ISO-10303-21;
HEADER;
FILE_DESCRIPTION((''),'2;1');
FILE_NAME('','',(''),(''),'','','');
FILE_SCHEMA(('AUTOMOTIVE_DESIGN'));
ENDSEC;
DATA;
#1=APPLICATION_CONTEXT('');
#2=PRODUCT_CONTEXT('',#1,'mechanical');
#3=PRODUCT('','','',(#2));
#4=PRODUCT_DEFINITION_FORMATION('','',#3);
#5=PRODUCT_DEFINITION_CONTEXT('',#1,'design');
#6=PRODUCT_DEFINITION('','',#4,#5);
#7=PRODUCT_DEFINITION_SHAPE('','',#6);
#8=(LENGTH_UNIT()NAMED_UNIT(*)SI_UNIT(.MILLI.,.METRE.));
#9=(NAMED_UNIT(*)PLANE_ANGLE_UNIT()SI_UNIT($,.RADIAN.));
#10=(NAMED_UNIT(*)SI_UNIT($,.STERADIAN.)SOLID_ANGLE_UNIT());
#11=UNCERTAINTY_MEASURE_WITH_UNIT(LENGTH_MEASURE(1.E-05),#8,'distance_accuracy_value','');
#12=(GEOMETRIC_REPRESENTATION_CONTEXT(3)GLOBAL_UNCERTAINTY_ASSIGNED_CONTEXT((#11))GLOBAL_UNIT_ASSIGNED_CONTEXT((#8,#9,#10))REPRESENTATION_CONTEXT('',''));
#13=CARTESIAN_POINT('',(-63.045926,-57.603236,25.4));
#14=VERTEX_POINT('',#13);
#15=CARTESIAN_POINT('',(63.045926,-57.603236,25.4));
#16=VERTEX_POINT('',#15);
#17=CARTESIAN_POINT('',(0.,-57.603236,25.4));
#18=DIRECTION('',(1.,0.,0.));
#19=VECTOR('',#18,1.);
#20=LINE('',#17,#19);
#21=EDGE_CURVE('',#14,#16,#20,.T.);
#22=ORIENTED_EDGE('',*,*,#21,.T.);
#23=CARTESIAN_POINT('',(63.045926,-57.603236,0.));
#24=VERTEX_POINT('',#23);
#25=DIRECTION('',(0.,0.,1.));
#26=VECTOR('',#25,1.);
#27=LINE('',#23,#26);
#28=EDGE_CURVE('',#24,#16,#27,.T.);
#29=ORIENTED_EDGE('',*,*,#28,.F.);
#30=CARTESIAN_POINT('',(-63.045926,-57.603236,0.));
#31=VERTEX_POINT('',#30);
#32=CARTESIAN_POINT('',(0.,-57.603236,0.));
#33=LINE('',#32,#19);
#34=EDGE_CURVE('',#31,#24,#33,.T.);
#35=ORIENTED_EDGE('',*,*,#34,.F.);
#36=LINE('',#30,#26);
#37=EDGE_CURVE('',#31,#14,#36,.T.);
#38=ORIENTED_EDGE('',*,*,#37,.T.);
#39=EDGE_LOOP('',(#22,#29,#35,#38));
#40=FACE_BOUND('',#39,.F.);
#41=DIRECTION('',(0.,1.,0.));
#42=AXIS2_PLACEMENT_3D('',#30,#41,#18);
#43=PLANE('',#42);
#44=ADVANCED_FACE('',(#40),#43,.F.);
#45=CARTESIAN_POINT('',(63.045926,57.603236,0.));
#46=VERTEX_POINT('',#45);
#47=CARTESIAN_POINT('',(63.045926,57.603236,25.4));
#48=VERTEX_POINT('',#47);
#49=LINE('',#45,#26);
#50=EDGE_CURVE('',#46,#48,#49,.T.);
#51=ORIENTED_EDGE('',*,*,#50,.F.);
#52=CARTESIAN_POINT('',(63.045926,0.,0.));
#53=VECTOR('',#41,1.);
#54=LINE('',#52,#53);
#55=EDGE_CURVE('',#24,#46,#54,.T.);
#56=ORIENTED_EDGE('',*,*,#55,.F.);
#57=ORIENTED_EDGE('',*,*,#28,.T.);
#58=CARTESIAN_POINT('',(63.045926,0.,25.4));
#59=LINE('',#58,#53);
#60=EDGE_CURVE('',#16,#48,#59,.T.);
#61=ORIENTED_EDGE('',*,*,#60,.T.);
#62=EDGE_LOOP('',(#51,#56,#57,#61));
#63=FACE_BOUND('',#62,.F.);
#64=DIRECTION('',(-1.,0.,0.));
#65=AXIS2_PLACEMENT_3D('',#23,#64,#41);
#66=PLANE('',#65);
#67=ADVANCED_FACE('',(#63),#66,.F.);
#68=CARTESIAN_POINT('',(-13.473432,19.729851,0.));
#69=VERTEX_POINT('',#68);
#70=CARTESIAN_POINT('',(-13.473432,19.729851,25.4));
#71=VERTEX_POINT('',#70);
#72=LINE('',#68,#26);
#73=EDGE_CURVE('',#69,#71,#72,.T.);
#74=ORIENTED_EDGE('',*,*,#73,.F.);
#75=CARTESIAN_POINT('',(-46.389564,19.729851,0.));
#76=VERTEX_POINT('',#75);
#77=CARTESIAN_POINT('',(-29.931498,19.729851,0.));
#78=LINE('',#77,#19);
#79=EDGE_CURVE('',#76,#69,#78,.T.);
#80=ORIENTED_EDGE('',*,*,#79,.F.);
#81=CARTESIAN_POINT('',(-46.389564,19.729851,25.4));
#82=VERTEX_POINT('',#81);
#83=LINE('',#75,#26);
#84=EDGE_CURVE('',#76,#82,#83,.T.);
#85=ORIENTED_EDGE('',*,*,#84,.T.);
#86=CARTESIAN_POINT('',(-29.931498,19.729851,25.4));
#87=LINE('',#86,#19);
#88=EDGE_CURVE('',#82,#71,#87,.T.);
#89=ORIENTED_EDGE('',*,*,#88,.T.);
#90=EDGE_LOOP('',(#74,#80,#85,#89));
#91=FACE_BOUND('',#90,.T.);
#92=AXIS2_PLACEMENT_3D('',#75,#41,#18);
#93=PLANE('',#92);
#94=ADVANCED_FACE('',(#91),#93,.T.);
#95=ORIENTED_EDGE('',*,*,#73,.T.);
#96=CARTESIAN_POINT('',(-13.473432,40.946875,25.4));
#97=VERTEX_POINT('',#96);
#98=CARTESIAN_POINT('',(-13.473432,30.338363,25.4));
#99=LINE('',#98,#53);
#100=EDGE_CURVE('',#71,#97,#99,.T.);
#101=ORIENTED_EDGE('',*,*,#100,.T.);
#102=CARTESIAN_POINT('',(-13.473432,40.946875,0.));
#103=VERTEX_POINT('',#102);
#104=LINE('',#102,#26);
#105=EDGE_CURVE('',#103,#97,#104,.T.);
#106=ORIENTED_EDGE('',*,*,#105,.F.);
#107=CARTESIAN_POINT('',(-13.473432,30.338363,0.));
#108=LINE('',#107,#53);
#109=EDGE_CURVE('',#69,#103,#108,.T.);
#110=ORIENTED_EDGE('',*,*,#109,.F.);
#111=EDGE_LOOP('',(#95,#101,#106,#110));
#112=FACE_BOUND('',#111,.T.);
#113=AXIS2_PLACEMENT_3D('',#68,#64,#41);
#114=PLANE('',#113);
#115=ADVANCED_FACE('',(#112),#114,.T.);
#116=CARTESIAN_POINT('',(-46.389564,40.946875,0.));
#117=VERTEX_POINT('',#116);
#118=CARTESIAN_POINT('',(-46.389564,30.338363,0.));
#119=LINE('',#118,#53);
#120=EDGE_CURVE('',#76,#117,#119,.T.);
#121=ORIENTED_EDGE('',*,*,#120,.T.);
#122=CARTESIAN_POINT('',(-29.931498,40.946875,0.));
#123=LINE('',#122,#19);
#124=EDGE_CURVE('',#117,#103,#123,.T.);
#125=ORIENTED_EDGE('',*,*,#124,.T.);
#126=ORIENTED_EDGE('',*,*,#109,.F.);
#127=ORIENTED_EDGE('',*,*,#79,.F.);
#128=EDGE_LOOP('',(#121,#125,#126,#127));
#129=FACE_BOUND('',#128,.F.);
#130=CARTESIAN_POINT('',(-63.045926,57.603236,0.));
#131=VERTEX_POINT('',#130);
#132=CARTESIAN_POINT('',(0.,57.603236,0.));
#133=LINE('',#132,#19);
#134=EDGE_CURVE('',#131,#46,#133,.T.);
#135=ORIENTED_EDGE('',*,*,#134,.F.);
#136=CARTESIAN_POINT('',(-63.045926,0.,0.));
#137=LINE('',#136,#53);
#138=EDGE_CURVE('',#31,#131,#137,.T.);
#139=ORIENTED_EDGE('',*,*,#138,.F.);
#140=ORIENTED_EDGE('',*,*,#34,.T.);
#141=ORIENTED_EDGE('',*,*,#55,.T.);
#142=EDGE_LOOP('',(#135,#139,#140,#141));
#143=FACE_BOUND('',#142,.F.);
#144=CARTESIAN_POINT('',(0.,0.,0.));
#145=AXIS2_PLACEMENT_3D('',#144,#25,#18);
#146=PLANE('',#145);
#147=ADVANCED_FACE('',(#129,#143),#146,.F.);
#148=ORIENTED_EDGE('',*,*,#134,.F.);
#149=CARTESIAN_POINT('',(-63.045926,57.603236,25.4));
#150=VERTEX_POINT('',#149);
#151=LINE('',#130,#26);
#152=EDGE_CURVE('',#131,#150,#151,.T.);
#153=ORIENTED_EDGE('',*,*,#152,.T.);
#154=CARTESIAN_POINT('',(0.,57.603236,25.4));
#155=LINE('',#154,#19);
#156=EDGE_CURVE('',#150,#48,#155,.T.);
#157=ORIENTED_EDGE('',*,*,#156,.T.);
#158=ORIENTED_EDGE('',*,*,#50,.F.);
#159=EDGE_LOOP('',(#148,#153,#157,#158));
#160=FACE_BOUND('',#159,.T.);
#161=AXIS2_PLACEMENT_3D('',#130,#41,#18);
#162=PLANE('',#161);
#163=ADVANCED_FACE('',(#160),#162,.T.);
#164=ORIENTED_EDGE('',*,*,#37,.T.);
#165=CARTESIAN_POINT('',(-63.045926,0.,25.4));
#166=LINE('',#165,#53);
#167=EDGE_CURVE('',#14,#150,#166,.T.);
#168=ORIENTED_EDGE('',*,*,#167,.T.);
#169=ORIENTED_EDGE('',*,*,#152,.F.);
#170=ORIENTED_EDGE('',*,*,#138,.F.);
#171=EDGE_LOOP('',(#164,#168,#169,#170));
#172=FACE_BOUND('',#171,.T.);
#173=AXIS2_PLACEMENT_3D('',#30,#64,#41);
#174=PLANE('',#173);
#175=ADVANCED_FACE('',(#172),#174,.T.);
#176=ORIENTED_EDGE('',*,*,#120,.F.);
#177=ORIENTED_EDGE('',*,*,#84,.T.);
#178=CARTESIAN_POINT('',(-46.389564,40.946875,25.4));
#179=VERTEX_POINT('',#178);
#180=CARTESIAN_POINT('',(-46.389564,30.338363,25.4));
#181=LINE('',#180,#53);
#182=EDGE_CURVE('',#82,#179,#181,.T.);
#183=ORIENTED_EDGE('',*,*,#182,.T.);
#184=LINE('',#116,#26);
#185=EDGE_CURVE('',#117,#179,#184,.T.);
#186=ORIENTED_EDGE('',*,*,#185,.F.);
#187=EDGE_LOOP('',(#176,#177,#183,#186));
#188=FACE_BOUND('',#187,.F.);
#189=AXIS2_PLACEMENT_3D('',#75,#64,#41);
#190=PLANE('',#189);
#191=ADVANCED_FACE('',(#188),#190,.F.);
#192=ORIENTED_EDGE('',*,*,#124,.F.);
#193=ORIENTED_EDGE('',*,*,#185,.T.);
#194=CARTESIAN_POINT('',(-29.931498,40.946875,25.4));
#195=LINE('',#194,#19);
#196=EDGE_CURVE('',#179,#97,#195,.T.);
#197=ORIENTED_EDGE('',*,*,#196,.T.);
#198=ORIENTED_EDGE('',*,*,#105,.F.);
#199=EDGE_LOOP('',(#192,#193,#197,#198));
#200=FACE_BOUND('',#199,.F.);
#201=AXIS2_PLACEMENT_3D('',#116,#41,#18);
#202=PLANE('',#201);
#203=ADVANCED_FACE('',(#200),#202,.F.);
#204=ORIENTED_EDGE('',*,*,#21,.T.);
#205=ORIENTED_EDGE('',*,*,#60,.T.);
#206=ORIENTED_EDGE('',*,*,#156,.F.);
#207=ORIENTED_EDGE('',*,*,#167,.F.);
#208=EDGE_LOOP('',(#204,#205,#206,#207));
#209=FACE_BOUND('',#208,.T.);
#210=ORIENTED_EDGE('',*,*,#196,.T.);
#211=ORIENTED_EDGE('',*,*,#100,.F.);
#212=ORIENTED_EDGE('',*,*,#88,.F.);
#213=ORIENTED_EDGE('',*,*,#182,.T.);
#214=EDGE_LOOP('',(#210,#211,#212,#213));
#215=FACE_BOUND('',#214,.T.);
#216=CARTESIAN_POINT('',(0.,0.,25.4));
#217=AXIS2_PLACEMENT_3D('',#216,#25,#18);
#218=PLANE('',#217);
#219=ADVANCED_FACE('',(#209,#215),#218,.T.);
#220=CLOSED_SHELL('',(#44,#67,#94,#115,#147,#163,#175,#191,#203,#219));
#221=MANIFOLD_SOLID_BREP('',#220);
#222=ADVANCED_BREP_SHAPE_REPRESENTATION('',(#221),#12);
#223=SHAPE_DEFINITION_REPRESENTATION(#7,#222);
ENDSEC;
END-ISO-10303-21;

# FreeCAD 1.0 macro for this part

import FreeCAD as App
import Part
import Sketcher

V = App.Vector
Q = App.Units.Quantity


def add_polygon(sketch, points):
    """Adds a closed chain of lines whose ends are joined by coincident constraints."""
    first, n = sketch.GeometryCount, len(points)
    for a, b in zip(points, points[1:] + points[:1]):
        sketch.addGeometry(Part.LineSegment(App.Vector(*a, 0), App.Vector(*b, 0)), False)
    for i in range(n):
        sketch.addConstraint(Sketcher.Constraint("Coincident", first + i, 2, first + (i + 1) % n, 1))

doc = App.newDocument("Part")
body = doc.addObject("PartDesign::Body", "Body")

# Sketch on XY plane
sketch1 = body.newObject("Sketcher::SketchObject", "Sketch")
sketch1.AttachmentSupport = (doc.getObject("XY_Plane"), [""])
sketch1.MapMode = "FlatFace"
add_polygon(sketch1, [(-37, 19), (-37, -19), (37, -19), (37, 19)])  # lines 0-3
sketch1.addConstraint([
    Sketcher.Constraint("Vertical", 0),
    Sketcher.Constraint("Horizontal", 1),
    Sketcher.Constraint("Vertical", 2),
    Sketcher.Constraint("Horizontal", 3),
    Sketcher.Constraint("Symmetric", 0, 2, 2, 2, -1, 1),
    Sketcher.Constraint("DistanceX", 1, 1, 1, 2, 73.41028),
    Sketcher.Constraint("DistanceY", 0, 2, 0, 1, 38.70118),
])
pad1 = body.newObject("PartDesign::Pad", "Pad")
pad1.Profile = sketch1
pad1.Length = Q("1 in")

# Sketch on XY plane
sketch2 = body.newObject("Sketcher::SketchObject", "Sketch001")
sketch2.AttachmentSupport = (doc.getObject("XY_Plane"), [""])
sketch2.MapMode = "FlatFace"
add_polygon(sketch2, [(-63, 58), (-63, -58), (63, -58), (63, 58)])  # lines 0-3
sketch2.addConstraint([
    Sketcher.Constraint("Vertical", 0),
    Sketcher.Constraint("Horizontal", 1),
    Sketcher.Constraint("Vertical", 2),
    Sketcher.Constraint("Horizontal", 3),
    Sketcher.Constraint("Symmetric", 0, 2, 2, 2, -1, 1),
    Sketcher.Constraint("DistanceX", 1, 1, 1, 2, 126.091852),
    Sketcher.Constraint("DistanceY", 0, 2, 0, 1, 115.206472),
])
pad2 = body.newObject("PartDesign::Pad", "Pad001")
pad2.Profile = sketch2
pad2.Length = Q("1 in")

# Sketch on XY plane
sketch3 = body.newObject("Sketcher::SketchObject", "Sketch002")
sketch3.AttachmentSupport = (doc.getObject("XY_Plane"), [""])
sketch3.MapMode = "FlatFace"
add_polygon(sketch3, [(-46, 41), (-46, 20), (-13, 20), (-13, 41)])  # lines 0-3
sketch3.addConstraint([
    Sketcher.Constraint("Vertical", 0),
    Sketcher.Constraint("Horizontal", 1),
    Sketcher.Constraint("Vertical", 2),
    Sketcher.Constraint("Horizontal", 3),
    Sketcher.Constraint("DistanceX", 1, 1, 1, 2, 32.916133),
    Sketcher.Constraint("DistanceY", 0, 2, 0, 1, 21.217024),
    Sketcher.Constraint("DistanceY", -1, 1, 0, 2, 19.729851),
    Sketcher.Constraint("DistanceX", 1, 2, -1, 1, 13.473432),
])
pocket1 = body.newObject("PartDesign::Pocket", "Pocket")
pocket1.Profile = sketch3
pocket1.Length = Q("1 in")
pocket1.Reversed = True

doc.recompute()
